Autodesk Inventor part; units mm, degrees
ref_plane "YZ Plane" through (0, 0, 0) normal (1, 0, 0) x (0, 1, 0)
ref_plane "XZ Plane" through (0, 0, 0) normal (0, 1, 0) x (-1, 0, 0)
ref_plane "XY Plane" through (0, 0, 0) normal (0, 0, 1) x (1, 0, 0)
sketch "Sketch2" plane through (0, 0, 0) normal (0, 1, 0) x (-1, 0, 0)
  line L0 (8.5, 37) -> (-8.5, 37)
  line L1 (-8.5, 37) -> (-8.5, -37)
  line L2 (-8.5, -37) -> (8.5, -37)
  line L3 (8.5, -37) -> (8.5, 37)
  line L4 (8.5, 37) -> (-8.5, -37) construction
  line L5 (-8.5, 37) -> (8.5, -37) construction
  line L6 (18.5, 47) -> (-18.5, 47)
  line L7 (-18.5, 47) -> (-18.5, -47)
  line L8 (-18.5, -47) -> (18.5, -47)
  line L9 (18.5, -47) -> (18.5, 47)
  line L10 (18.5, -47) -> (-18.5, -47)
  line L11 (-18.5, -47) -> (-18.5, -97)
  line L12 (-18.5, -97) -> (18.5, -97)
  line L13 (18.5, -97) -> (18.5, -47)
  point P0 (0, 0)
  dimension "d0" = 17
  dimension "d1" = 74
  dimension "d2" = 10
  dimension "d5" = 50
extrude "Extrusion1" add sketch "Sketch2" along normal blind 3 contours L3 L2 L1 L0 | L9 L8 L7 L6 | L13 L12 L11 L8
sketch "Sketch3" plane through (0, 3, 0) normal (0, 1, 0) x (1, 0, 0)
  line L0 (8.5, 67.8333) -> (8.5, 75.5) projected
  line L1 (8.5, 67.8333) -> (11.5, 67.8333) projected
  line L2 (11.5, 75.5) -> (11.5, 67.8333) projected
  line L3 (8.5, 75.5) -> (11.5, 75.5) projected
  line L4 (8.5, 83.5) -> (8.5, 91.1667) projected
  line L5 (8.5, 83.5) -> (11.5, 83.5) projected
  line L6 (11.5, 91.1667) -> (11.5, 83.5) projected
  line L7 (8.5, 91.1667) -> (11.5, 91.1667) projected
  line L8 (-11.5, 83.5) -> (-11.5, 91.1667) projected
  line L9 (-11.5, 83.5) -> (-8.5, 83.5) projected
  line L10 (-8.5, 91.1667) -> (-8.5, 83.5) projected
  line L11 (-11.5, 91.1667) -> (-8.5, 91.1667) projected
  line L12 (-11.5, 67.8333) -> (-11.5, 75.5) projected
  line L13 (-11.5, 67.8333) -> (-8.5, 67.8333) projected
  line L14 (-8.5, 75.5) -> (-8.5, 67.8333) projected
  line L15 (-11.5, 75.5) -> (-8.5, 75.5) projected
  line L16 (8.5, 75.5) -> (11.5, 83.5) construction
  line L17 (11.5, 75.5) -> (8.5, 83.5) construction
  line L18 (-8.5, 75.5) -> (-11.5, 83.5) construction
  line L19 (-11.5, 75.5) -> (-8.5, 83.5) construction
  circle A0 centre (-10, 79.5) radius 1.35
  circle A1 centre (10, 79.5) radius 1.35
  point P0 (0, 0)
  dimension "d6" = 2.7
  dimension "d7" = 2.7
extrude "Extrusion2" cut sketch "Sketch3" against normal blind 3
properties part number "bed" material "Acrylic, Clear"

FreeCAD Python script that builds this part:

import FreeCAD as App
import Part
import Sketcher
from FreeCAD import Vector
Q = App.Units.Quantity

doc = App.newDocument("Part")
body = doc.addObject("PartDesign::Body", "Body")

# Sketch on XZ plane
sketch1 = doc.addObject("Sketcher::SketchObject", "Sketch")
body.addObject(sketch1)
sketch1.AttachmentSupport = (doc.XZ_Plane, [""])
sketch1.MapMode = "FlatFace"
sketch1.addGeometry([
    Part.LineSegment(Vector(-18, 47, 0), Vector(18, 47, 0)),
    Part.LineSegment(Vector(18, 47, 0), Vector(18, -97, 0)),
    Part.LineSegment(Vector(18, -97, 0), Vector(-18, -97, 0)),
    Part.LineSegment(Vector(-18, -97, 0), Vector(-18, 47, 0)),
], False)
sketch1.addConstraint([
    Sketcher.Constraint("Coincident", 0, 2, 1, 1),
    Sketcher.Constraint("Coincident", 1, 2, 2, 1),
    Sketcher.Constraint("Coincident", 2, 2, 3, 1),
    Sketcher.Constraint("Coincident", 3, 2, 0, 1),
    Sketcher.Constraint("Horizontal", 0),
    Sketcher.Constraint("Vertical", 1),
    Sketcher.Constraint("Horizontal", 2),
    Sketcher.Constraint("Vertical", 3),
    Sketcher.Constraint("DistanceX", 0, 1, 0, 2, Q("37 mm")),
    Sketcher.Constraint("DistanceY", 1, 2, 1, 1, Q("144 mm")),
    Sketcher.Constraint("DistanceY", -1, 1, 0, 2, Q("47 mm")),
    Sketcher.Constraint("DistanceX", -1, 1, 0, 2, Q("18.5 mm")),
])
pad1 = doc.addObject("PartDesign::Pad", "Pad")
body.addObject(pad1)
pad1.Profile = sketch1
pad1.Length = 3
pad1.Reversed = True

# Sketch on XZ plane
sketch2 = doc.addObject("Sketcher::SketchObject", "Sketch001")
body.addObject(sketch2)
sketch2.AttachmentSupport = (doc.XZ_Plane, [""])
sketch2.MapMode = "FlatFace"
sketch2.AttachmentOffset = App.Placement(Vector(0, 0, -3), App.Rotation())
sketch2.addGeometry([
    Part.LineSegment(Vector(8.5, -75.5, 0), Vector(8.5, -67.8, 0)),  # 0
    Part.LineSegment(Vector(8.5, -67.8, 0), Vector(11.5, -67.8, 0)),  # 1
    Part.LineSegment(Vector(11.5, -67.8, 0), Vector(11.5, -75.5, 0)),  # 2
    Part.LineSegment(Vector(11.5, -75.5, 0), Vector(8.5, -75.5, 0)),  # 3
    Part.LineSegment(Vector(8.5, -91.2, 0), Vector(8.5, -83.5, 0)),  # 4
    Part.LineSegment(Vector(8.5, -83.5, 0), Vector(11.5, -83.5, 0)),  # 5
    Part.LineSegment(Vector(11.5, -83.5, 0), Vector(11.5, -91.2, 0)),  # 6
    Part.LineSegment(Vector(11.5, -91.2, 0), Vector(8.5, -91.2, 0)),  # 7
    Part.LineSegment(Vector(-11.5, -91.2, 0), Vector(-11.5, -83.5, 0)),  # 8
    Part.LineSegment(Vector(-11.5, -83.5, 0), Vector(-8.5, -83.5, 0)),  # 9
    Part.LineSegment(Vector(-8.5, -83.5, 0), Vector(-8.5, -91.2, 0)),  # 10
    Part.LineSegment(Vector(-8.5, -91.2, 0), Vector(-11.5, -91.2, 0)),  # 11
    Part.LineSegment(Vector(-11.5, -75.5, 0), Vector(-11.5, -67.8, 0)),  # 12
    Part.LineSegment(Vector(-11.5, -67.8, 0), Vector(-8.5, -67.8, 0)),  # 13
    Part.LineSegment(Vector(-8.5, -67.8, 0), Vector(-8.5, -75.5, 0)),  # 14
    Part.LineSegment(Vector(-8.5, -75.5, 0), Vector(-11.5, -75.5, 0)),  # 15
    Part.Circle(Vector(-10, -79.5, 0), Vector(0, 0, 1), 1.4),  # 16
    Part.Circle(Vector(10, -79.5, 0), Vector(0, 0, 1), 1.4),  # 17
], False)
sketch2.addConstraint([
    Sketcher.Constraint("Coincident", 0, 2, 1, 1),
    Sketcher.Constraint("Coincident", 1, 2, 2, 1),
    Sketcher.Constraint("Coincident", 2, 2, 3, 1),
    Sketcher.Constraint("Coincident", 3, 2, 0, 1),
    Sketcher.Constraint("Coincident", 4, 2, 5, 1),
    Sketcher.Constraint("Coincident", 5, 2, 6, 1),
    Sketcher.Constraint("Coincident", 6, 2, 7, 1),
    Sketcher.Constraint("Coincident", 7, 2, 4, 1),
    Sketcher.Constraint("Coincident", 8, 2, 9, 1),
    Sketcher.Constraint("Coincident", 9, 2, 10, 1),
    Sketcher.Constraint("Coincident", 10, 2, 11, 1),
    Sketcher.Constraint("Coincident", 11, 2, 8, 1),
    Sketcher.Constraint("Coincident", 12, 2, 13, 1),
    Sketcher.Constraint("Coincident", 13, 2, 14, 1),
    Sketcher.Constraint("Coincident", 14, 2, 15, 1),
    Sketcher.Constraint("Coincident", 15, 2, 12, 1),
    Sketcher.Constraint("Vertical", 0),
    Sketcher.Constraint("Horizontal", 1),
    Sketcher.Constraint("Vertical", 2),
    Sketcher.Constraint("Horizontal", 3),
    Sketcher.Constraint("Vertical", 4),
    Sketcher.Constraint("Horizontal", 5),
    Sketcher.Constraint("Vertical", 6),
    Sketcher.Constraint("Horizontal", 7),
    Sketcher.Constraint("Vertical", 8),
    Sketcher.Constraint("Horizontal", 9),
    Sketcher.Constraint("Vertical", 10),
    Sketcher.Constraint("Horizontal", 11),
    Sketcher.Constraint("Vertical", 12),
    Sketcher.Constraint("Horizontal", 13),
    Sketcher.Constraint("Vertical", 14),
    Sketcher.Constraint("Horizontal", 15),
    Sketcher.Constraint("Equal", 16, 17),
    Sketcher.Constraint("Symmetric", 16, 3, 17, 3, -2),
    Sketcher.Constraint("Symmetric", 5, 2, 8, 2, -2),
    Sketcher.Constraint("Symmetric", 7, 2, 10, 2, -2),
    Sketcher.Constraint("Symmetric", 1, 2, 12, 2, -2),
    Sketcher.Constraint("Symmetric", 3, 2, 14, 2, -2),
    Sketcher.Constraint("Vertical", 3, 2, 4, 2),
    Sketcher.Constraint("Vertical", 2, 2, 5, 2),
    Sketcher.Constraint("Equal", 2, 4),
    Sketcher.Constraint("Diameter", 16, Q("2.7 mm")),
    Sketcher.Constraint("DistanceX", 1, 1, 1, 2, Q("3 mm")),
    Sketcher.Constraint("DistanceX", 16, 3, -1, 1, Q("10 mm")),
    Sketcher.Constraint("DistanceY", 17, 3, 2, 2, Q("4 mm")),
    Sketcher.Constraint("DistanceY", 4, 2, 17, 3, Q("4 mm")),
    Sketcher.Constraint("DistanceX", 8, 2, 4, 2, Q("20 mm")),
    Sketcher.Constraint("DistanceY", 16, 3, -1, 1, Q("79.5 mm")),
    Sketcher.Constraint("DistanceY", 0, 1, 0, 2, Q("7.6667 mm")),
])
pocket1 = doc.addObject("PartDesign::Pocket", "Pocket")
body.addObject(pocket1)
pocket1.Profile = sketch2
pocket1.Length = 3
pocket1.Reversed = True

doc.recompute()
